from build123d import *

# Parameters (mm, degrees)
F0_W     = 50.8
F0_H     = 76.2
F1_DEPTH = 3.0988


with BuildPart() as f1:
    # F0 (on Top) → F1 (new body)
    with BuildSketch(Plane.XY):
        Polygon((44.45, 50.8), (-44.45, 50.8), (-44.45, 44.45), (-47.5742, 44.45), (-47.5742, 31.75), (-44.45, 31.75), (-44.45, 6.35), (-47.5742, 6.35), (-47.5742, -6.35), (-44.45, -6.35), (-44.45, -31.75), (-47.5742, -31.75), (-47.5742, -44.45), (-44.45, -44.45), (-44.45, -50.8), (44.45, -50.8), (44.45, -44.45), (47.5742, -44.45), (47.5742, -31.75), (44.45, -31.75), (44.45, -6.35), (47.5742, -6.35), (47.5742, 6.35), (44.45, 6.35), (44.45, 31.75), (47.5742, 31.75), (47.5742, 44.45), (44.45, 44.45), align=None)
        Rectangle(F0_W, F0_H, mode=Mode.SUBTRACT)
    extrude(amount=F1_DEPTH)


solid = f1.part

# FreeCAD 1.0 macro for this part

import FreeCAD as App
import Part
import Sketcher
Q = App.Units.Quantity

doc = App.newDocument("Part")
body = doc.addObject("PartDesign::Body", "Body")

# Sketch on XY plane
sketch1 = body.newObject("Sketcher::SketchObject", "Sketch")
sketch1.AttachmentSupport = (doc.getObject("XY_Plane"), [""])
sketch1.MapMode = "FlatFace"
sketch1.addGeometry([
    Part.LineSegment(App.Vector(44.5, 50.8, 0), App.Vector(-44.5, 50.8, 0)),  # 0
    Part.LineSegment(App.Vector(-44.5, 50.8, 0), App.Vector(-44.5, 44.5, 0)),  # 1
    Part.LineSegment(App.Vector(-44.5, 44.5, 0), App.Vector(-47.6, 44.5, 0)),  # 2
    Part.LineSegment(App.Vector(-47.6, 44.5, 0), App.Vector(-47.6, 31.8, 0)),  # 3
    Part.LineSegment(App.Vector(-47.6, 31.8, 0), App.Vector(-44.5, 31.8, 0)),  # 4
    Part.LineSegment(App.Vector(-44.5, 31.8, 0), App.Vector(-44.5, 6.3, 0)),  # 5
    Part.LineSegment(App.Vector(-44.5, 6.3, 0), App.Vector(-47.6, 6.3, 0)),  # 6
    Part.LineSegment(App.Vector(-47.6, 6.3, 0), App.Vector(-47.6, -6.3, 0)),  # 7
    Part.LineSegment(App.Vector(-47.6, -6.3, 0), App.Vector(-44.5, -6.3, 0)),  # 8
    Part.LineSegment(App.Vector(-44.5, -6.3, 0), App.Vector(-44.5, -31.8, 0)),  # 9
    Part.LineSegment(App.Vector(-44.5, -31.8, 0), App.Vector(-47.6, -31.8, 0)),  # 10
    Part.LineSegment(App.Vector(-47.6, -31.8, 0), App.Vector(-47.6, -44.5, 0)),  # 11
    Part.LineSegment(App.Vector(-47.6, -44.5, 0), App.Vector(-44.5, -44.5, 0)),  # 12
    Part.LineSegment(App.Vector(-44.5, -44.5, 0), App.Vector(-44.5, -50.8, 0)),  # 13
    Part.LineSegment(App.Vector(-44.5, -50.8, 0), App.Vector(44.5, -50.8, 0)),  # 14
    Part.LineSegment(App.Vector(44.5, -50.8, 0), App.Vector(44.5, -44.5, 0)),  # 15
    Part.LineSegment(App.Vector(44.5, -44.5, 0), App.Vector(47.6, -44.5, 0)),  # 16
    Part.LineSegment(App.Vector(47.6, -44.5, 0), App.Vector(47.6, -31.8, 0)),  # 17
    Part.LineSegment(App.Vector(47.6, -31.8, 0), App.Vector(44.5, -31.8, 0)),  # 18
    Part.LineSegment(App.Vector(44.5, -31.8, 0), App.Vector(44.5, -6.3, 0)),  # 19
    Part.LineSegment(App.Vector(44.5, -6.3, 0), App.Vector(47.6, -6.3, 0)),  # 20
    Part.LineSegment(App.Vector(47.6, -6.3, 0), App.Vector(47.6, 6.3, 0)),  # 21
    Part.LineSegment(App.Vector(47.6, 6.3, 0), App.Vector(44.5, 6.3, 0)),  # 22
    Part.LineSegment(App.Vector(44.5, 6.3, 0), App.Vector(44.5, 31.8, 0)),  # 23
    Part.LineSegment(App.Vector(44.5, 31.8, 0), App.Vector(47.6, 31.8, 0)),  # 24
    Part.LineSegment(App.Vector(47.6, 31.8, 0), App.Vector(47.6, 44.5, 0)),  # 25
    Part.LineSegment(App.Vector(47.6, 44.5, 0), App.Vector(44.5, 44.5, 0)),  # 26
    Part.LineSegment(App.Vector(44.5, 44.5, 0), App.Vector(44.5, 50.8, 0)),  # 27
    Part.LineSegment(App.Vector(25.4, -38.1, 0), App.Vector(-25.4, -38.1, 0)),  # 28
    Part.LineSegment(App.Vector(-25.4, -38.1, 0), App.Vector(-25.4, 38.1, 0)),  # 29
    Part.LineSegment(App.Vector(-25.4, 38.1, 0), App.Vector(25.4, 38.1, 0)),  # 30
    Part.LineSegment(App.Vector(25.4, 38.1, 0), App.Vector(25.4, -38.1, 0)),  # 31
], False)
sketch1.addConstraint([
    Sketcher.Constraint("Coincident", 0, 2, 1, 1),
    Sketcher.Constraint("Coincident", 1, 2, 2, 1),
    Sketcher.Constraint("Coincident", 2, 2, 3, 1),
    Sketcher.Constraint("Coincident", 3, 2, 4, 1),
    Sketcher.Constraint("Coincident", 4, 2, 5, 1),
    Sketcher.Constraint("Coincident", 5, 2, 6, 1),
    Sketcher.Constraint("Coincident", 6, 2, 7, 1),
    Sketcher.Constraint("Coincident", 7, 2, 8, 1),
    Sketcher.Constraint("Coincident", 8, 2, 9, 1),
    Sketcher.Constraint("Coincident", 9, 2, 10, 1),
    Sketcher.Constraint("Coincident", 10, 2, 11, 1),
    Sketcher.Constraint("Coincident", 11, 2, 12, 1),
    Sketcher.Constraint("Coincident", 12, 2, 13, 1),
    Sketcher.Constraint("Coincident", 13, 2, 14, 1),
    Sketcher.Constraint("Coincident", 14, 2, 15, 1),
    Sketcher.Constraint("Coincident", 15, 2, 16, 1),
    Sketcher.Constraint("Coincident", 16, 2, 17, 1),
    Sketcher.Constraint("Coincident", 17, 2, 18, 1),
    Sketcher.Constraint("Coincident", 18, 2, 19, 1),
    Sketcher.Constraint("Coincident", 19, 2, 20, 1),
    Sketcher.Constraint("Coincident", 20, 2, 21, 1),
    Sketcher.Constraint("Coincident", 21, 2, 22, 1),
    Sketcher.Constraint("Coincident", 22, 2, 23, 1),
    Sketcher.Constraint("Coincident", 23, 2, 24, 1),
    Sketcher.Constraint("Coincident", 24, 2, 25, 1),
    Sketcher.Constraint("Coincident", 25, 2, 26, 1),
    Sketcher.Constraint("Coincident", 26, 2, 27, 1),
    Sketcher.Constraint("Coincident", 27, 2, 0, 1),
    Sketcher.Constraint("Coincident", 28, 2, 29, 1),
    Sketcher.Constraint("Coincident", 29, 2, 30, 1),
    Sketcher.Constraint("Coincident", 30, 2, 31, 1),
    Sketcher.Constraint("Coincident", 31, 2, 28, 1),
    Sketcher.Constraint("Horizontal", 0),
    Sketcher.Constraint("Vertical", 1),
    Sketcher.Constraint("Horizontal", 2),
    Sketcher.Constraint("Vertical", 3),
    Sketcher.Constraint("Horizontal", 4),
    Sketcher.Constraint("Vertical", 5),
    Sketcher.Constraint("Horizontal", 6),
    Sketcher.Constraint("Vertical", 7),
    Sketcher.Constraint("Horizontal", 8),
    Sketcher.Constraint("Vertical", 9),
    Sketcher.Constraint("Horizontal", 10),
    Sketcher.Constraint("Vertical", 11),
    Sketcher.Constraint("Horizontal", 12),
    Sketcher.Constraint("Vertical", 13),
    Sketcher.Constraint("Horizontal", 14),
    Sketcher.Constraint("Vertical", 15),
    Sketcher.Constraint("Horizontal", 16),
    Sketcher.Constraint("Vertical", 17),
    Sketcher.Constraint("Horizontal", 18),
    Sketcher.Constraint("Vertical", 19),
    Sketcher.Constraint("Horizontal", 20),
    Sketcher.Constraint("Vertical", 21),
    Sketcher.Constraint("Horizontal", 22),
    Sketcher.Constraint("Vertical", 23),
    Sketcher.Constraint("Horizontal", 24),
    Sketcher.Constraint("Vertical", 25),
    Sketcher.Constraint("Horizontal", 26),
    Sketcher.Constraint("Vertical", 27),
    Sketcher.Constraint("Horizontal", 28),
    Sketcher.Constraint("Vertical", 29),
    Sketcher.Constraint("Horizontal", 30),
    Sketcher.Constraint("Vertical", 31),
    Sketcher.Constraint("Symmetric", 0, 2, 14, 2, -1, 1),
    Sketcher.Constraint("Symmetric", 2, 2, 16, 2, -1, 1),
    Sketcher.Constraint("Symmetric", 4, 2, 18, 2, -1, 1),
    Sketcher.Constraint("Symmetric", 6, 2, 20, 2, -1, 1),
    Sketcher.Constraint("Symmetric", 8, 2, 22, 2, -1, 1),
    Sketcher.Constraint("Symmetric", 10, 2, 24, 2, -1, 1),
    Sketcher.Constraint("Symmetric", 12, 2, 26, 2, -1, 1),
    Sketcher.Constraint("Symmetric", 28, 2, 30, 2, -1, 1),
    Sketcher.Constraint("Symmetric", 12, 2, 15, 2, -2),
    Sketcher.Constraint("Symmetric", 10, 2, 17, 2, -2),
    Sketcher.Constraint("Symmetric", 8, 2, 19, 2, -2),
    Sketcher.Constraint("Vertical", 1, 2, 4, 2),
    Sketcher.Constraint("Vertical", 3, 2, 6, 2),
    Sketcher.Constraint("Equal", 3, 7),
    Sketcher.Constraint("DistanceX", 28, 2, 28, 1, Q("2 in")),
    Sketcher.Constraint("DistanceY", 5, 2, 5, 1, Q("1 in")),
    Sketcher.Constraint("DistanceY", 29, 1, 29, 2, Q("3 in")),
    Sketcher.Constraint("DistanceX", 0, 2, 0, 1, Q("3.5 in")),
    Sketcher.Constraint("DistanceY", 3, 2, 3, 1, Q("0.5 in")),
    Sketcher.Constraint("DistanceY", -1, 1, 0, 2, Q("2 in")),
    Sketcher.Constraint("DistanceX", 2, 2, 2, 1, Q("0.123 in")),
])
pad1 = body.newObject("PartDesign::Pad", "Pad")
pad1.Profile = sketch1
pad1.Length = Q("0.122 in")

doc.recompute()
